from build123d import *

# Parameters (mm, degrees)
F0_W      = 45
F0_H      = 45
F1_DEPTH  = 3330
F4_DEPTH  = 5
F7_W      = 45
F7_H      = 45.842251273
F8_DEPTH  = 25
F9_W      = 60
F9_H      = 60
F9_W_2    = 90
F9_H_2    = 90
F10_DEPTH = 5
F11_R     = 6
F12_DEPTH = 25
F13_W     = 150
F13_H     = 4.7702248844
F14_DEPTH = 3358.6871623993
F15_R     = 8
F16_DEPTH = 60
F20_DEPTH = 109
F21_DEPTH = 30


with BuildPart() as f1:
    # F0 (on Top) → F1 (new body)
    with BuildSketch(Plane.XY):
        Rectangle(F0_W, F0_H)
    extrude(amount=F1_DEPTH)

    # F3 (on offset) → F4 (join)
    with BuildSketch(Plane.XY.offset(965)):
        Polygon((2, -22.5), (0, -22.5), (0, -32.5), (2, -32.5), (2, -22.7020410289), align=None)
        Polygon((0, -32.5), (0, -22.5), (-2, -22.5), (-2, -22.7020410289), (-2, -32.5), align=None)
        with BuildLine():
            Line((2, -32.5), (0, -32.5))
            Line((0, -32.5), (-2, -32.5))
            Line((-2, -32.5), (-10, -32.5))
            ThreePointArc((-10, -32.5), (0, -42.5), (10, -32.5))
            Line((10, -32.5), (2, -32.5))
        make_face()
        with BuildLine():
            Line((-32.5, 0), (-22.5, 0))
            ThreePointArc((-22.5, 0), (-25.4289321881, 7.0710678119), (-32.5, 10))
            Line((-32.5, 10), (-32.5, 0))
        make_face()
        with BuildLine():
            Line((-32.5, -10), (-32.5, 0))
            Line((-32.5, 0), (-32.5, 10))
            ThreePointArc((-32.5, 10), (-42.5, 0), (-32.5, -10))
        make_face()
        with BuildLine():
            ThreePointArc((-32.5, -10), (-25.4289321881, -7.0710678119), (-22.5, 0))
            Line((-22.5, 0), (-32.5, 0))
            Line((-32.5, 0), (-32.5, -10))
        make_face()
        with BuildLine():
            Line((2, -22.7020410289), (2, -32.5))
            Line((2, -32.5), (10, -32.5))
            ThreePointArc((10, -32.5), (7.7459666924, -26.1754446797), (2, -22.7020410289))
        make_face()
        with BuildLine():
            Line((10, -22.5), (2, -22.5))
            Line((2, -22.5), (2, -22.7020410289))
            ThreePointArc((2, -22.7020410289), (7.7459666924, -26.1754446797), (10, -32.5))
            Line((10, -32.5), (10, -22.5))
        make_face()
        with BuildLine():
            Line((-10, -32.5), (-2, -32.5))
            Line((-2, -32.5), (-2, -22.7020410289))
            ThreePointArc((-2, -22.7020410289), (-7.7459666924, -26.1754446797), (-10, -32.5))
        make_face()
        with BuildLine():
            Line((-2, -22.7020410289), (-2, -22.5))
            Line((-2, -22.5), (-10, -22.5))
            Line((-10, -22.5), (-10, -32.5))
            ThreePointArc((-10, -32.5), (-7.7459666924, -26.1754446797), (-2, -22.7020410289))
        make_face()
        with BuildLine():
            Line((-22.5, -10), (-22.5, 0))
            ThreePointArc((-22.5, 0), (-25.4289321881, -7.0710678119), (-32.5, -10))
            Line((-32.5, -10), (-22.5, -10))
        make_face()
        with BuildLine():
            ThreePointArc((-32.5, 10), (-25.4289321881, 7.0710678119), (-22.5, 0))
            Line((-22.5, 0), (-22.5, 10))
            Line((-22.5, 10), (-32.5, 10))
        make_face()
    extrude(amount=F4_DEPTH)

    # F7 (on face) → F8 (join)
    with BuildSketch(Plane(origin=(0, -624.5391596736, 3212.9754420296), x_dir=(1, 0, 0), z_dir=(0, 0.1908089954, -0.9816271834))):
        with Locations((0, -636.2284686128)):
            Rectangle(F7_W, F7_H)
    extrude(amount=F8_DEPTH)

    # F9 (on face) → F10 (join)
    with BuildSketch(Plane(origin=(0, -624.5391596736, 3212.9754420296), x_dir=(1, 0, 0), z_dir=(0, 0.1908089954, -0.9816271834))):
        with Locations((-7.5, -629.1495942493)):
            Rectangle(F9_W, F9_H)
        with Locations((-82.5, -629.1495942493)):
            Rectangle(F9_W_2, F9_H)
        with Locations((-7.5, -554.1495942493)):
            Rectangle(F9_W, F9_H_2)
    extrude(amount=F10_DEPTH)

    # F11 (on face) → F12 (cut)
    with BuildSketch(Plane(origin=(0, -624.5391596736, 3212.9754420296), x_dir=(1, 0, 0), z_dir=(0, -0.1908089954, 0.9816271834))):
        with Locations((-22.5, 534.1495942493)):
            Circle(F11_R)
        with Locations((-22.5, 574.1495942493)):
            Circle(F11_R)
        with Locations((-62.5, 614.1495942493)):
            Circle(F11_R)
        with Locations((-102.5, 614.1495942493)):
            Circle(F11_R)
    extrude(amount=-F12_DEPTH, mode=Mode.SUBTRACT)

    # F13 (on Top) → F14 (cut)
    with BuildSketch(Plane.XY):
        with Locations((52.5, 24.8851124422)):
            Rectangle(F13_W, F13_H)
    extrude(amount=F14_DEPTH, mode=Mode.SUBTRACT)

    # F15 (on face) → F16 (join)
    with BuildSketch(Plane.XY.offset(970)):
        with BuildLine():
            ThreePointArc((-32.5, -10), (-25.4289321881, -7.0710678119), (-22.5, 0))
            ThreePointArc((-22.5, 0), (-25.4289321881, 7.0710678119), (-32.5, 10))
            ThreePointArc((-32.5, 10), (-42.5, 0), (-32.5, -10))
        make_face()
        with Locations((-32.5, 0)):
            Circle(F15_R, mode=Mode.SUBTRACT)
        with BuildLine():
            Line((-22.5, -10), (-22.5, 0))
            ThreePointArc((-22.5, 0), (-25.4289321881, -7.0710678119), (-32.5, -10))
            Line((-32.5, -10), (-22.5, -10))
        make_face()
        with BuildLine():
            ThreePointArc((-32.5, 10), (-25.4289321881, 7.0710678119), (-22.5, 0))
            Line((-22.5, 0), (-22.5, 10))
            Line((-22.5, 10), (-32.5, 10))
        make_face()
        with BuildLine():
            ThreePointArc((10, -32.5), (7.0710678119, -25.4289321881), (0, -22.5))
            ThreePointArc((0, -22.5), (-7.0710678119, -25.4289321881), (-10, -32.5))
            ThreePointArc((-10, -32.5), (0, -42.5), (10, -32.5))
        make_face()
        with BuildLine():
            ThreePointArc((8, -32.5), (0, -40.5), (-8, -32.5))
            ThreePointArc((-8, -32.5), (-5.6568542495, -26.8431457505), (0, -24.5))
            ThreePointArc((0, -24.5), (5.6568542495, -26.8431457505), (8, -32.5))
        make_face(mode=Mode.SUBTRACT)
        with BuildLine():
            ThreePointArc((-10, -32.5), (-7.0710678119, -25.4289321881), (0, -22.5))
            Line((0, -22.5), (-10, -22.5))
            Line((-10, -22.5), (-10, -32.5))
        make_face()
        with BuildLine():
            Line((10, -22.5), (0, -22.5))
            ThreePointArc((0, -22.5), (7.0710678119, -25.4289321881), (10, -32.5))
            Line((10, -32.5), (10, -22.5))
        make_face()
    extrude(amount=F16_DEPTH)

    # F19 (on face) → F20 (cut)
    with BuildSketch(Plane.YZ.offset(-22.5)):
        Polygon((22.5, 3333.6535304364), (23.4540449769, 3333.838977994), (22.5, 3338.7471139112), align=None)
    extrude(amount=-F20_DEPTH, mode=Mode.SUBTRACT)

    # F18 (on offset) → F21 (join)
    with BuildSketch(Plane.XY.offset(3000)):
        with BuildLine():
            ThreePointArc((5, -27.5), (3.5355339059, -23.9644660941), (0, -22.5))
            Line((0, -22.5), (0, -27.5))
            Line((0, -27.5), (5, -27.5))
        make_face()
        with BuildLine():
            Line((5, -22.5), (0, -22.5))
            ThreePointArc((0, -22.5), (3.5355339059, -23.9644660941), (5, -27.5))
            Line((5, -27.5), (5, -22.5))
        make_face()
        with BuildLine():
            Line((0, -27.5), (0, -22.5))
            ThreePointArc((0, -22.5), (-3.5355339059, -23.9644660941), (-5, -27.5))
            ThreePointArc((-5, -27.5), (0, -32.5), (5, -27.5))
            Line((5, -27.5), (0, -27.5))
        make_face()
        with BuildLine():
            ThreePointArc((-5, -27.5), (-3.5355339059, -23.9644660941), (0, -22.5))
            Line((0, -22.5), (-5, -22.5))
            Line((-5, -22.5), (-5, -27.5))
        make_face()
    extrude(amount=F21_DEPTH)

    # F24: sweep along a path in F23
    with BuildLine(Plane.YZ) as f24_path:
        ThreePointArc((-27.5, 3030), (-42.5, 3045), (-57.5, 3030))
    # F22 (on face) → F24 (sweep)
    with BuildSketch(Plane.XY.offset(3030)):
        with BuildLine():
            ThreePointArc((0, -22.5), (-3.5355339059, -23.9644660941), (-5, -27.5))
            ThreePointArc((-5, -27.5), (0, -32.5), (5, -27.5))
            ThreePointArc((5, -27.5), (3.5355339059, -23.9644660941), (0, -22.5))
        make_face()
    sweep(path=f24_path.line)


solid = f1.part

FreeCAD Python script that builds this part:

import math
import FreeCAD as App
import Part
import Sketcher

V = App.Vector
Q = App.Units.Quantity


def add_polygon(sketch, points):
    """Adds a closed chain of lines whose ends are joined by coincident constraints."""
    first, n = sketch.GeometryCount, len(points)
    for a, b in zip(points, points[1:] + points[:1]):
        sketch.addGeometry(Part.LineSegment(App.Vector(*a, 0), App.Vector(*b, 0)), False)
    for i in range(n):
        sketch.addConstraint(Sketcher.Constraint("Coincident", first + i, 2, first + (i + 1) % n, 1))

doc = App.newDocument("Part")
body = doc.addObject("PartDesign::Body", "Body")

# Sketch on XY plane
sketch1 = doc.addObject("Sketcher::SketchObject", "Sketch")
body.addObject(sketch1)
sketch1.AttachmentSupport = (doc.XY_Plane, [""])
sketch1.MapMode = "FlatFace"
add_polygon(sketch1, [(-22, 22), (-22, -22), (22, -22), (22, 22)])  # lines 0-3
sketch1.addConstraint(Sketcher.Constraint("Vertical", 0))
sketch1.addConstraint(Sketcher.Constraint("Horizontal", 1))
sketch1.addConstraint(Sketcher.Constraint("Vertical", 2))
sketch1.addConstraint(Sketcher.Constraint("Horizontal", 3))
sketch1.addConstraint(Sketcher.Constraint("Symmetric", 0, 2, 2, 2, -1, 1))
sketch1.addConstraint(Sketcher.Constraint("Equal", 3, 0))
sketch1.addConstraint(Sketcher.Constraint("DistanceX", 1, 1, 1, 2, Q("45 mm")))
pad1 = doc.addObject("PartDesign::Pad", "Pad")
body.addObject(pad1)
pad1.Profile = sketch1
pad1.Length = 3330

# Sketch on XY plane
sketch2 = doc.addObject("Sketcher::SketchObject", "Sketch001")
body.addObject(sketch2)
sketch2.AttachmentSupport = (doc.XY_Plane, [""])
sketch2.MapMode = "FlatFace"
sketch2.AttachmentOffset = App.Placement(V(0, 0, 965), App.Rotation())
sketch2.addGeometry(Part.ArcOfCircle(Part.Circle(V(0, -32, 0), V(0, 0, 1), 10), math.radians(180), math.radians(360)), False)
sketch2.addGeometry(Part.LineSegment(V(10, -32, 0), V(10, -22, 0)), False)
sketch2.addGeometry(Part.LineSegment(V(10, -22, 0), V(-10, -22, 0)), False)
sketch2.addGeometry(Part.LineSegment(V(-10, -22, 0), V(-10, -32, 0)), False)
sketch2.addGeometry(Part.ArcOfCircle(Part.Circle(V(-32, 0, 0), V(0, 0, 1), 10), math.radians(90), math.radians(270)), False)
sketch2.addGeometry(Part.LineSegment(V(-32, -10, 0), V(-22, -10, 0)), False)
sketch2.addGeometry(Part.LineSegment(V(-22, -10, 0), V(-22, 10, 0)), False)
sketch2.addGeometry(Part.LineSegment(V(-22, 10, 0), V(-32, 10, 0)), False)
sketch2.addConstraint(Sketcher.Constraint("Tangent", 0, 2, 1, 1))
sketch2.addConstraint(Sketcher.Constraint("Coincident", 1, 2, 2, 1))
sketch2.addConstraint(Sketcher.Constraint("Coincident", 2, 2, 3, 1))
sketch2.addConstraint(Sketcher.Constraint("Tangent", 3, 2, 0, 1))
sketch2.addConstraint(Sketcher.Constraint("Tangent", 4, 2, 5, 1))
sketch2.addConstraint(Sketcher.Constraint("Coincident", 5, 2, 6, 1))
sketch2.addConstraint(Sketcher.Constraint("Coincident", 6, 2, 7, 1))
sketch2.addConstraint(Sketcher.Constraint("Tangent", 7, 2, 4, 1))
sketch2.addConstraint(Sketcher.Constraint("Vertical", 1))
sketch2.addConstraint(Sketcher.Constraint("Horizontal", 2))
sketch2.addConstraint(Sketcher.Constraint("Vertical", 3))
sketch2.addConstraint(Sketcher.Constraint("Horizontal", 5))
sketch2.addConstraint(Sketcher.Constraint("Vertical", 6))
sketch2.addConstraint(Sketcher.Constraint("Horizontal", 7))
sketch2.addConstraint(Sketcher.Constraint("Equal", 0, 4))
sketch2.addConstraint(Sketcher.Constraint("PointOnObject", 0, 3, -2))
sketch2.addConstraint(Sketcher.Constraint("PointOnObject", 4, 3, -1))
sketch2.addConstraint(Sketcher.Constraint("Equal", 7, 1))
sketch2.addConstraint(Sketcher.Constraint("Radius", 0, Q("10 mm")))
sketch2.addConstraint(Sketcher.Constraint("DistanceX", 5, 1, 5, 2, Q("10 mm")))
sketch2.addConstraint(Sketcher.Constraint("DistanceY", 0, 3, -1, 1, Q("32.5 mm")))
sketch2.addConstraint(Sketcher.Constraint("DistanceX", 4, 3, -1, 1, Q("32.5 mm")))
pad2 = doc.addObject("PartDesign::Pad", "Pad001")
body.addObject(pad2)
pad2.Profile = sketch2
pad2.Length = 5

# Sketch on an angled plane
sketch3 = doc.addObject("Sketcher::SketchObject", "Sketch002")
body.addObject(sketch3)
sketch3.Placement = App.Placement(V(0, -624.53916, 3212.975442), App.Rotation(V(1, 0, 0), V(0, -0.981627183, -0.190808995), V(0, 0.190808995, -0.981627183), "ZXY"))
add_polygon(sketch3, [(-22, -613), (-22, -659), (22, -659), (22, -613)])  # lines 0-3
sketch3.addConstraint(Sketcher.Constraint("Vertical", 0))
sketch3.addConstraint(Sketcher.Constraint("Horizontal", 1))
sketch3.addConstraint(Sketcher.Constraint("Vertical", 2))
sketch3.addConstraint(Sketcher.Constraint("Horizontal", 3))
sketch3.addConstraint(Sketcher.Constraint("DistanceX", 1, 1, 1, 2, Q("45 mm")))
sketch3.addConstraint(Sketcher.Constraint("DistanceX", 0, 2, -1, 1, Q("22.5 mm")))
sketch3.addConstraint(Sketcher.Constraint("DistanceY", 0, 2, 0, 1, Q("45.842251 mm")))
sketch3.addConstraint(Sketcher.Constraint("DistanceY", 0, 2, -1, 1, Q("659.149594 mm")))
pad3 = doc.addObject("PartDesign::Pad", "Pad002")
body.addObject(pad3)
pad3.Profile = sketch3
pad3.Length = 25

# Sketch on an angled plane
sketch4 = doc.addObject("Sketcher::SketchObject", "Sketch003")
body.addObject(sketch4)
sketch4.Placement = App.Placement(V(0, -624.53916, 3212.975442), App.Rotation(V(1, 0, 0), V(0, -0.981627183, -0.190808995), V(0, 0.190808995, -0.981627183), "ZXY"))
add_polygon(sketch4, [(22, -659), (22, -509), (-38, -509), (-38, -599), (-128, -599), (-128, -659)])  # lines 0-5
sketch4.addConstraint(Sketcher.Constraint("Vertical", 0))
sketch4.addConstraint(Sketcher.Constraint("Horizontal", 1))
sketch4.addConstraint(Sketcher.Constraint("Vertical", 2))
sketch4.addConstraint(Sketcher.Constraint("Horizontal", 3))
sketch4.addConstraint(Sketcher.Constraint("Vertical", 4))
sketch4.addConstraint(Sketcher.Constraint("Horizontal", 5))
sketch4.addConstraint(Sketcher.Constraint("Equal", 5, 0))
sketch4.addConstraint(Sketcher.Constraint("Equal", 3, 2))
sketch4.addConstraint(Sketcher.Constraint("DistanceX", 1, 2, 1, 1, Q("60 mm")))
sketch4.addConstraint(Sketcher.Constraint("DistanceX", 3, 2, 3, 1, Q("90 mm")))
sketch4.addConstraint(Sketcher.Constraint("DistanceX", -1, 1, 0, 2, Q("22.5 mm")))
sketch4.addConstraint(Sketcher.Constraint("DistanceY", 0, 2, -1, 1, Q("509.149594 mm")))
pad4 = doc.addObject("PartDesign::Pad", "Pad003")
body.addObject(pad4)
pad4.Profile = sketch4
pad4.Length = 5

# Sketch on an angled plane
sketch5 = doc.addObject("Sketcher::SketchObject", "Sketch004")
body.addObject(sketch5)
sketch5.Placement = App.Placement(V(0, -624.53916, 3212.975442), App.Rotation(V(1, 0, 0), V(0, 0.981627183, 0.190808995), V(0, -0.190808995, 0.981627183), "ZXY"))
sketch5.addGeometry(Part.Circle(V(-22, 534, 0), V(0, 0, 1), 6), False)
sketch5.addGeometry(Part.Circle(V(-22, 574, 0), V(0, 0, 1), 6), False)
sketch5.addGeometry(Part.Circle(V(-62, 614, 0), V(0, 0, 1), 6), False)
sketch5.addGeometry(Part.Circle(V(-102, 614, 0), V(0, 0, 1), 6), False)
sketch5.addConstraint(Sketcher.Constraint("Equal", 0, 1))
sketch5.addConstraint(Sketcher.Constraint("Equal", 1, 2))
sketch5.addConstraint(Sketcher.Constraint("Equal", 2, 3))
sketch5.addConstraint(Sketcher.Constraint("Horizontal", 2, 3, 3, 3))
sketch5.addConstraint(Sketcher.Constraint("Vertical", 0, 3, 1, 3))
sketch5.addConstraint(Sketcher.Constraint("Diameter", 0, Q("12 mm")))
sketch5.addConstraint(Sketcher.Constraint("DistanceY", 0, 3, 1, 3, Q("40 mm")))
sketch5.addConstraint(Sketcher.Constraint("DistanceX", 2, 3, 1, 3, Q("40 mm")))
sketch5.addConstraint(Sketcher.Constraint("DistanceY", 1, 3, 2, 3, Q("40 mm")))
sketch5.addConstraint(Sketcher.Constraint("DistanceX", 3, 3, 2, 3, Q("40 mm")))
sketch5.addConstraint(Sketcher.Constraint("DistanceX", 0, 3, -1, 1, Q("22.5 mm")))
sketch5.addConstraint(Sketcher.Constraint("DistanceY", -1, 1, 0, 3, Q("534.149594 mm")))
pocket1 = doc.addObject("PartDesign::Pocket", "Pocket")
body.addObject(pocket1)
pocket1.Profile = sketch5
pocket1.Length = 25

# Sketch on XY plane
sketch6 = doc.addObject("Sketcher::SketchObject", "Sketch005")
body.addObject(sketch6)
sketch6.AttachmentSupport = (doc.XY_Plane, [""])
sketch6.MapMode = "FlatFace"
add_polygon(sketch6, [(-22.5, 27.3), (-22.5, 22.5), (127.5, 22.5), (127.5, 27.3)])  # lines 0-3
sketch6.addConstraint(Sketcher.Constraint("Vertical", 0))
sketch6.addConstraint(Sketcher.Constraint("Horizontal", 1))
sketch6.addConstraint(Sketcher.Constraint("Vertical", 2))
sketch6.addConstraint(Sketcher.Constraint("Horizontal", 3))
sketch6.addConstraint(Sketcher.Constraint("DistanceX", 1, 1, 1, 2, Q("150 mm")))
sketch6.addConstraint(Sketcher.Constraint("DistanceX", 0, 2, -1, 1, Q("22.5 mm")))
sketch6.addConstraint(Sketcher.Constraint("DistanceY", -1, 1, 0, 2, Q("22.5 mm")))
sketch6.addConstraint(Sketcher.Constraint("DistanceY", 0, 2, 0, 1, Q("4.770225 mm")))
pocket2 = doc.addObject("PartDesign::Pocket", "Pocket001")
body.addObject(pocket2)
pocket2.Profile = sketch6
pocket2.Length = 3358.687162
pocket2.Reversed = True

# Sketch on XY plane
sketch7 = doc.addObject("Sketcher::SketchObject", "Sketch006")
body.addObject(sketch7)
sketch7.AttachmentSupport = (doc.XY_Plane, [""])
sketch7.MapMode = "FlatFace"
sketch7.AttachmentOffset = App.Placement(V(0, 0, 970), App.Rotation())
sketch7.addGeometry(Part.ArcOfCircle(Part.Circle(V(-32, 0, 0), V(0, 0, 1), 10), math.radians(90), math.radians(270)), False)
sketch7.addGeometry(Part.LineSegment(V(-32, -10, 0), V(-22, -10, 0)), False)
sketch7.addGeometry(Part.LineSegment(V(-22, -10, 0), V(-22, 10, 0)), False)
sketch7.addGeometry(Part.LineSegment(V(-22, 10, 0), V(-32, 10, 0)), False)
sketch7.addGeometry(Part.Circle(V(-32, 0, 0), V(0, 0, 1), 8), False)
sketch7.addGeometry(Part.LineSegment(V(-10, -22, 0), V(-10, -32, 0)), False)
sketch7.addGeometry(Part.ArcOfCircle(Part.Circle(V(0, -32, 0), V(0, 0, 1), 10), math.radians(180), math.radians(360)), False)
sketch7.addGeometry(Part.LineSegment(V(10, -32, 0), V(10, -22, 0)), False)
sketch7.addGeometry(Part.LineSegment(V(10, -22, 0), V(-10, -22, 0)), False)
sketch7.addGeometry(Part.ArcOfCircle(Part.Circle(V(0, -32, 0), V(0, 0, 1), 8), math.radians(0), math.radians(90)), False)
sketch7.addGeometry(Part.ArcOfCircle(Part.Circle(V(0, -32, 0), V(0, 0, 1), 8), math.radians(180), math.radians(360)), False)
sketch7.addGeometry(Part.ArcOfCircle(Part.Circle(V(0, -32, 0), V(0, 0, 1), 8), math.radians(90), math.radians(180)), False)
sketch7.addConstraint(Sketcher.Constraint("Tangent", 0, 2, 1, 1))
sketch7.addConstraint(Sketcher.Constraint("Coincident", 1, 2, 2, 1))
sketch7.addConstraint(Sketcher.Constraint("Coincident", 2, 2, 3, 1))
sketch7.addConstraint(Sketcher.Constraint("Tangent", 3, 2, 0, 1))
sketch7.addConstraint(Sketcher.Constraint("Tangent", 5, 2, 6, 1))
sketch7.addConstraint(Sketcher.Constraint("Tangent", 6, 2, 7, 1))
sketch7.addConstraint(Sketcher.Constraint("Coincident", 7, 2, 8, 1))
sketch7.addConstraint(Sketcher.Constraint("Coincident", 8, 2, 5, 1))
sketch7.addConstraint(Sketcher.Constraint("Tangent", 9, 1, 10, 2))
sketch7.addConstraint(Sketcher.Constraint("Tangent", 10, 1, 11, 2))
sketch7.addConstraint(Sketcher.Constraint("Tangent", 11, 1, 9, 2))
sketch7.addConstraint(Sketcher.Constraint("Horizontal", 1))
sketch7.addConstraint(Sketcher.Constraint("Vertical", 2))
sketch7.addConstraint(Sketcher.Constraint("Horizontal", 3))
sketch7.addConstraint(Sketcher.Constraint("Vertical", 5))
sketch7.addConstraint(Sketcher.Constraint("Vertical", 7))
sketch7.addConstraint(Sketcher.Constraint("Horizontal", 8))
sketch7.addConstraint(Sketcher.Constraint("Coincident", 4, 3, 0, 3))
sketch7.addConstraint(Sketcher.Constraint("Coincident", 9, 3, 6, 3))
sketch7.addConstraint(Sketcher.Constraint("Equal", 0, 6))
sketch7.addConstraint(Sketcher.Constraint("Equal", 4, 9))
sketch7.addConstraint(Sketcher.Constraint("Symmetric", 9, 1, 10, 1, -2))
sketch7.addConstraint(Sketcher.Constraint("PointOnObject", 0, 3, -1))
sketch7.addConstraint(Sketcher.Constraint("PointOnObject", 11, 1, -2))
sketch7.addConstraint(Sketcher.Constraint("Horizontal", 6, 2, 9, 1))
sketch7.addConstraint(Sketcher.Constraint("Equal", 3, 5))
sketch7.addConstraint(Sketcher.Constraint("Diameter", 4, Q("16 mm")))
sketch7.addConstraint(Sketcher.Constraint("Radius", 0, Q("10 mm")))
sketch7.addConstraint(Sketcher.Constraint("DistanceX", 1, 1, 1, 2, Q("10 mm")))
sketch7.addConstraint(Sketcher.Constraint("DistanceX", 0, 3, -1, 1, Q("32.5 mm")))
sketch7.addConstraint(Sketcher.Constraint("DistanceY", 6, 3, -1, 1, Q("32.5 mm")))
pad5 = doc.addObject("PartDesign::Pad", "Pad004")
body.addObject(pad5)
pad5.Profile = sketch7
pad5.Length = 60

# Sketch on YZ plane
sketch8 = doc.addObject("Sketcher::SketchObject", "Sketch007")
body.addObject(sketch8)
sketch8.AttachmentSupport = (doc.YZ_Plane, [""])
sketch8.MapMode = "FlatFace"
sketch8.AttachmentOffset = App.Placement(V(0, 0, -22.5), App.Rotation())
add_polygon(sketch8, [(22.5, 3333.7), (23.5, 3333.8), (22.5, 3338.7)])  # lines 0-2
sketch8.addConstraint(Sketcher.Constraint("Vertical", 2))
sketch8.addConstraint(Sketcher.Constraint("Perpendicular", 0, 1))
sketch8.addConstraint(Sketcher.Constraint("Angle", 0, Q("11 deg")))
sketch8.addConstraint(Sketcher.Constraint("Distance", 1, Q("5 mm")))
sketch8.addConstraint(Sketcher.Constraint("DistanceX", -1, 1, 1, 2, Q("22.5 mm")))
sketch8.addConstraint(Sketcher.Constraint("DistanceY", -1, 1, 2, 2, Q("3333.65353 mm")))
pocket3 = doc.addObject("PartDesign::Pocket", "Pocket002")
body.addObject(pocket3)
pocket3.Profile = sketch8
pocket3.Length = 109

# Sketch on XY plane
sketch9 = doc.addObject("Sketcher::SketchObject", "Sketch008")
body.addObject(sketch9)
sketch9.AttachmentSupport = (doc.XY_Plane, [""])
sketch9.MapMode = "FlatFace"
sketch9.AttachmentOffset = App.Placement(V(0, 0, 3000), App.Rotation())
sketch9.addGeometry(Part.LineSegment(V(5, -28, 0), V(5, -22, 0)), False)
sketch9.addGeometry(Part.LineSegment(V(5, -22, 0), V(-5, -22, 0)), False)
sketch9.addGeometry(Part.LineSegment(V(-5, -22, 0), V(-5, -28, 0)), False)
sketch9.addGeometry(Part.ArcOfCircle(Part.Circle(V(0, -28, 0), V(0, 0, 1), 5), math.radians(180), math.radians(360)), False)
sketch9.addConstraint(Sketcher.Constraint("Coincident", 0, 2, 1, 1))
sketch9.addConstraint(Sketcher.Constraint("Coincident", 1, 2, 2, 1))
sketch9.addConstraint(Sketcher.Constraint("Tangent", 2, 2, 3, 1))
sketch9.addConstraint(Sketcher.Constraint("Tangent", 3, 2, 0, 1))
sketch9.addConstraint(Sketcher.Constraint("Vertical", 0))
sketch9.addConstraint(Sketcher.Constraint("Horizontal", 1))
sketch9.addConstraint(Sketcher.Constraint("Vertical", 2))
sketch9.addConstraint(Sketcher.Constraint("PointOnObject", 3, 3, -2))
sketch9.addConstraint(Sketcher.Constraint("Radius", 3, Q("5 mm")))
sketch9.addConstraint(Sketcher.Constraint("DistanceY", 0, 1, 0, 2, Q("5 mm")))
sketch9.addConstraint(Sketcher.Constraint("DistanceY", 3, 3, -1, 1, Q("27.5 mm")))
pad6 = doc.addObject("PartDesign::Pad", "Pad005")
body.addObject(pad6)
pad6.Profile = sketch9
pad6.Length = 30

# Sketch on XY plane
sketch10 = doc.addObject("Sketcher::SketchObject", "Sketch009")
body.addObject(sketch10)
sketch10.AttachmentSupport = (doc.XY_Plane, [""])
sketch10.MapMode = "FlatFace"
sketch10.AttachmentOffset = App.Placement(V(0, 0, 3030), App.Rotation())
sketch10.addGeometry(Part.ArcOfCircle(Part.Circle(V(0, -28, 0), V(0, 0, 1), 5), math.radians(90), math.radians(180)), False)
sketch10.addGeometry(Part.ArcOfCircle(Part.Circle(V(0, -28, 0), V(0, 0, 1), 5), math.radians(180), math.radians(360)), False)
sketch10.addGeometry(Part.ArcOfCircle(Part.Circle(V(0, -28, 0), V(0, 0, 1), 5), math.radians(0), math.radians(90)), False)
sketch10.addConstraint(Sketcher.Constraint("Tangent", 0, 2, 1, 1))
sketch10.addConstraint(Sketcher.Constraint("Tangent", 1, 2, 2, 1))
sketch10.addConstraint(Sketcher.Constraint("Tangent", 2, 2, 0, 1))
sketch10.addConstraint(Sketcher.Constraint("Symmetric", 0, 2, 1, 2, -2))
sketch10.addConstraint(Sketcher.Constraint("PointOnObject", 2, 2, -2))
sketch10.addConstraint(Sketcher.Constraint("Horizontal", 2, 3, 0, 2))
sketch10.addConstraint(Sketcher.Constraint("Radius", 0, Q("5 mm")))
sketch10.addConstraint(Sketcher.Constraint("DistanceY", 0, 3, -1, 1, Q("27.5 mm")))

# Sketch on YZ plane
sketch11 = doc.addObject("Sketcher::SketchObject", "Sketch010")
body.addObject(sketch11)
sketch11.AttachmentSupport = (doc.YZ_Plane, [""])
sketch11.MapMode = "FlatFace"
sketch11.addGeometry(Part.ArcOfCircle(Part.Circle(V(-42, 3030, 0), V(0, 0, 1), 15), math.radians(0), math.radians(180)), False)
sketch11.addConstraint(Sketcher.Constraint("Radius", 0, Q("15 mm")))
sketch11.addConstraint(Sketcher.Constraint("DistanceY", -1, 1, 0, 3, Q("3030 mm")))
sketch11.addConstraint(Sketcher.Constraint("DistanceY", -1, 1, 0, 1, Q("3030 mm")))
sketch11.addConstraint(Sketcher.Constraint("DistanceY", -1, 1, 0, 2, Q("3030 mm")))
sketch11.addConstraint(Sketcher.Constraint("DistanceX", 0, 3, -1, 1, Q("42.5 mm")))
doc.recompute()

additivepipe = doc.addObject("PartDesign::AdditivePipe", "AdditivePipe")
body.addObject(additivepipe)
additivepipe.Profile = sketch10
additivepipe.Spine = (sketch11, ["Edge1"])

doc.recompute()
